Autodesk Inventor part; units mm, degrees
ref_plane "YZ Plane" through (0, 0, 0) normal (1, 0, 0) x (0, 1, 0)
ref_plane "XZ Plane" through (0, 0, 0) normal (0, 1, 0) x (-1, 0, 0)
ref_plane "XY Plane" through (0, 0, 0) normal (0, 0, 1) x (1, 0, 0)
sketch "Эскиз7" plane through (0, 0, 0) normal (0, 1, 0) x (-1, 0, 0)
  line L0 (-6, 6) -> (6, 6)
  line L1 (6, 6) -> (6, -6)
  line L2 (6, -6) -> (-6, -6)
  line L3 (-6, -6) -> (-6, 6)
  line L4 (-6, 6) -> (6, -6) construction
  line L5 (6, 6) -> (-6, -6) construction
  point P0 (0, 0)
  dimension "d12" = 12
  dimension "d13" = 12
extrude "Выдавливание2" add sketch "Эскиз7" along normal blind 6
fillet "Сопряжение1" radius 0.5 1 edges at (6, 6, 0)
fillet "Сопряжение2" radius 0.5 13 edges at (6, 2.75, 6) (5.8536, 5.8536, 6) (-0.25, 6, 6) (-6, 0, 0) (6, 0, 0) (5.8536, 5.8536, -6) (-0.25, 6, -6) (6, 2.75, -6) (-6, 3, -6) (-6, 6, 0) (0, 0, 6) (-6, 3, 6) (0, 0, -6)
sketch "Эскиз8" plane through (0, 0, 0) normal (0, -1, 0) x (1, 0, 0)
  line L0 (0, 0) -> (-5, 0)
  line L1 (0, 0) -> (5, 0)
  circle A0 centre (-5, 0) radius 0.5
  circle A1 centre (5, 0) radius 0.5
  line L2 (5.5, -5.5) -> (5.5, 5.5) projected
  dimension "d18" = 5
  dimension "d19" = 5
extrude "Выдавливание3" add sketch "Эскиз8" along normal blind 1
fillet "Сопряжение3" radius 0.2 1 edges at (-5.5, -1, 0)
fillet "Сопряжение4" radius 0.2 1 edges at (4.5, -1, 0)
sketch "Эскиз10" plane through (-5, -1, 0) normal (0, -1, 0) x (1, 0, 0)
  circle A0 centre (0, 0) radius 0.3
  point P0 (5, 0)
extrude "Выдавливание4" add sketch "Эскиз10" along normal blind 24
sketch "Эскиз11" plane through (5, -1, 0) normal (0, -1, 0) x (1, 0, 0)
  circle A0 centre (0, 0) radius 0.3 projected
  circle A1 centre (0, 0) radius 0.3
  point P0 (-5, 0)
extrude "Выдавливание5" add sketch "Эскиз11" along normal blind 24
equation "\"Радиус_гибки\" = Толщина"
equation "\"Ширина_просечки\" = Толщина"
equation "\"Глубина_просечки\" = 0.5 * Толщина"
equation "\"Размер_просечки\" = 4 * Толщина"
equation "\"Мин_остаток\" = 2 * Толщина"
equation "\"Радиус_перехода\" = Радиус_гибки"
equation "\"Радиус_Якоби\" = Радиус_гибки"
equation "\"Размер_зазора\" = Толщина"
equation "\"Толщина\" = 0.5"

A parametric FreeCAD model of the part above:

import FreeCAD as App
import Part
import Sketcher

V = App.Vector
Q = App.Units.Quantity


def edges_at(feature, points):
    """Names of the edges that pass closest to the given points."""
    edges = feature.Shape.Edges
    near = lambda p: min(range(len(edges)), key=lambda i: edges[i].distToShape(Part.Vertex(*p))[0])
    return sorted({f"Edge{near(p) + 1}" for p in points})

doc = App.newDocument("Part")
body = doc.addObject("PartDesign::Body", "Body")

# Sketch on XZ plane
sketch1 = doc.addObject("Sketcher::SketchObject", "Sketch")
body.addObject(sketch1)
sketch1.AttachmentSupport = (doc.XZ_Plane, [""])
sketch1.MapMode = "FlatFace"
sketch1.addGeometry([
    Part.LineSegment(V(-6, 6, 0), V(6, 6, 0)),
    Part.LineSegment(V(6, 6, 0), V(6, -6, 0)),
    Part.LineSegment(V(6, -6, 0), V(-6, -6, 0)),
    Part.LineSegment(V(-6, -6, 0), V(-6, 6, 0)),
], False)
sketch1.addConstraint([
    Sketcher.Constraint("Coincident", 0, 2, 1, 1),
    Sketcher.Constraint("Coincident", 1, 2, 2, 1),
    Sketcher.Constraint("Coincident", 2, 2, 3, 1),
    Sketcher.Constraint("Coincident", 3, 2, 0, 1),
    Sketcher.Constraint("Horizontal", 0),
    Sketcher.Constraint("Vertical", 1),
    Sketcher.Constraint("Horizontal", 2),
    Sketcher.Constraint("Vertical", 3),
    Sketcher.Constraint("Symmetric", 0, 2, 2, 2, -1, 1),
    Sketcher.Constraint("Equal", 2, 1),
    Sketcher.Constraint("DistanceX", 0, 1, 0, 2, Q("12 mm")),
])
pad1 = doc.addObject("PartDesign::Pad", "Pad")
body.addObject(pad1)
pad1.Profile = sketch1
pad1.Length = 6
pad1.Reversed = True
doc.recompute()

fillet = doc.addObject("PartDesign::Fillet", "Fillet")
body.addObject(fillet)
fillet.Base = (pad1, edges_at(pad1, [(6, 6, 0)]))
fillet.Radius = 0.5
doc.recompute()

fillet2 = doc.addObject("PartDesign::Fillet", "Fillet001")
body.addObject(fillet2)
fillet2.Base = (fillet, ["Edge1"])
fillet2.UseAllEdges = True
fillet2.Radius = 0.5

# Sketch on XZ plane
sketch2 = doc.addObject("Sketcher::SketchObject", "Sketch001")
body.addObject(sketch2)
sketch2.AttachmentSupport = (doc.XZ_Plane, [""])
sketch2.MapMode = "FlatFace"
sketch2.addGeometry([
    Part.Circle(V(-5, 0, 0), V(0, 0, 1), 0.5),
    Part.Circle(V(5, 0, 0), V(0, 0, 1), 0.5),
], False)
sketch2.addConstraint([
    Sketcher.Constraint("Equal", 0, 1),
    Sketcher.Constraint("Symmetric", 0, 3, 1, 3, -1, 1),
    Sketcher.Constraint("PointOnObject", 0, 3, -1),
    Sketcher.Constraint("Diameter", 0, Q("1 mm")),
    Sketcher.Constraint("DistanceX", 0, 3, -1, 1, Q("5 mm")),
])
pad2 = doc.addObject("PartDesign::Pad", "Pad001")
body.addObject(pad2)
pad2.Profile = sketch2
pad2.Length = 1
doc.recompute()

fillet3 = doc.addObject("PartDesign::Fillet", "Fillet002")
body.addObject(fillet3)
fillet3.Base = (pad2, edges_at(pad2, [(-5.5, -1, 0)]))
fillet3.Radius = 0.2
doc.recompute()

fillet4 = doc.addObject("PartDesign::Fillet", "Fillet003")
body.addObject(fillet4)
fillet4.Base = (fillet3, edges_at(fillet3, [(4.5, -1, 0)]))
fillet4.Radius = 0.2

# Sketch on XZ plane
sketch3 = doc.addObject("Sketcher::SketchObject", "Sketch002")
body.addObject(sketch3)
sketch3.AttachmentSupport = (doc.XZ_Plane, [""])
sketch3.MapMode = "FlatFace"
sketch3.AttachmentOffset = App.Placement(V(0, 0, 1), App.Rotation())
sketch3.addGeometry(Part.Circle(V(-5, 0, 0), V(0, 0, 1), 0.3), False)
sketch3.addConstraint([
    Sketcher.Constraint("PointOnObject", 0, 3, -1),
    Sketcher.Constraint("Diameter", 0, Q("0.6 mm")),
    Sketcher.Constraint("DistanceX", 0, 3, -1, 1, Q("5 mm")),
])
pad3 = doc.addObject("PartDesign::Pad", "Pad002")
body.addObject(pad3)
pad3.Profile = sketch3
pad3.Length = 24

# Sketch on XZ plane
sketch4 = doc.addObject("Sketcher::SketchObject", "Sketch003")
body.addObject(sketch4)
sketch4.AttachmentSupport = (doc.XZ_Plane, [""])
sketch4.MapMode = "FlatFace"
sketch4.AttachmentOffset = App.Placement(V(0, 0, 1), App.Rotation())
sketch4.addGeometry(Part.Circle(V(5, 0, 0), V(0, 0, 1), 0.3), False)
sketch4.addConstraint([
    Sketcher.Constraint("PointOnObject", 0, 3, -1),
    Sketcher.Constraint("Diameter", 0, Q("0.6 mm")),
    Sketcher.Constraint("DistanceX", -1, 1, 0, 3, Q("5 mm")),
])
pad4 = doc.addObject("PartDesign::Pad", "Pad003")
body.addObject(pad4)
pad4.Profile = sketch4
pad4.Length = 24

doc.recompute()
